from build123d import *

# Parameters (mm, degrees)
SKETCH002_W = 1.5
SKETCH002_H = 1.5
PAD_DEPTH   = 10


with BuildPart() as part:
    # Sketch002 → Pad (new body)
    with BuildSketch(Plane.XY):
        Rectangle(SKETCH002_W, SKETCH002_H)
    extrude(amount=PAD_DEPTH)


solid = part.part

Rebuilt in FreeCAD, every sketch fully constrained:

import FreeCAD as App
import Part
import Sketcher

V = App.Vector
Q = App.Units.Quantity

doc = App.newDocument("Part")
body = doc.addObject("PartDesign::Body", "Body")

sketch1 = body.newObject("Sketcher::SketchObject", "Sketch")
sketch1.AttachmentSupport = (doc.getObject("XY_Plane"), [""])
sketch1.MapMode = "FlatFace"
sketch1.addGeometry([
    Part.LineSegment(V(-0.8, 0.8, 0), V(-0.8, -0.8, 0)),
    Part.LineSegment(V(-0.8, -0.8, 0), V(0.8, -0.8, 0)),
    Part.LineSegment(V(0.8, -0.8, 0), V(0.8, 0.8, 0)),
    Part.LineSegment(V(0.8, 0.8, 0), V(-0.8, 0.8, 0)),
], False)
sketch1.addConstraint([
    Sketcher.Constraint("Coincident", 0, 2, 1, 1),
    Sketcher.Constraint("Coincident", 1, 2, 2, 1),
    Sketcher.Constraint("Coincident", 2, 2, 3, 1),
    Sketcher.Constraint("Coincident", 3, 2, 0, 1),
    Sketcher.Constraint("Vertical", 0),
    Sketcher.Constraint("Horizontal", 1),
    Sketcher.Constraint("Vertical", 2),
    Sketcher.Constraint("Horizontal", 3),
    Sketcher.Constraint("Symmetric", 0, 2, 2, 2, -1, 1),
    Sketcher.Constraint("Equal", 3, 0),
    Sketcher.Constraint("DistanceX", 1, 1, 1, 2, Q("1.5 mm")),
])
pad1 = body.newObject("PartDesign::Pad", "Pad")
pad1.Profile = sketch1
pad1.Length = 10

doc.recompute()
